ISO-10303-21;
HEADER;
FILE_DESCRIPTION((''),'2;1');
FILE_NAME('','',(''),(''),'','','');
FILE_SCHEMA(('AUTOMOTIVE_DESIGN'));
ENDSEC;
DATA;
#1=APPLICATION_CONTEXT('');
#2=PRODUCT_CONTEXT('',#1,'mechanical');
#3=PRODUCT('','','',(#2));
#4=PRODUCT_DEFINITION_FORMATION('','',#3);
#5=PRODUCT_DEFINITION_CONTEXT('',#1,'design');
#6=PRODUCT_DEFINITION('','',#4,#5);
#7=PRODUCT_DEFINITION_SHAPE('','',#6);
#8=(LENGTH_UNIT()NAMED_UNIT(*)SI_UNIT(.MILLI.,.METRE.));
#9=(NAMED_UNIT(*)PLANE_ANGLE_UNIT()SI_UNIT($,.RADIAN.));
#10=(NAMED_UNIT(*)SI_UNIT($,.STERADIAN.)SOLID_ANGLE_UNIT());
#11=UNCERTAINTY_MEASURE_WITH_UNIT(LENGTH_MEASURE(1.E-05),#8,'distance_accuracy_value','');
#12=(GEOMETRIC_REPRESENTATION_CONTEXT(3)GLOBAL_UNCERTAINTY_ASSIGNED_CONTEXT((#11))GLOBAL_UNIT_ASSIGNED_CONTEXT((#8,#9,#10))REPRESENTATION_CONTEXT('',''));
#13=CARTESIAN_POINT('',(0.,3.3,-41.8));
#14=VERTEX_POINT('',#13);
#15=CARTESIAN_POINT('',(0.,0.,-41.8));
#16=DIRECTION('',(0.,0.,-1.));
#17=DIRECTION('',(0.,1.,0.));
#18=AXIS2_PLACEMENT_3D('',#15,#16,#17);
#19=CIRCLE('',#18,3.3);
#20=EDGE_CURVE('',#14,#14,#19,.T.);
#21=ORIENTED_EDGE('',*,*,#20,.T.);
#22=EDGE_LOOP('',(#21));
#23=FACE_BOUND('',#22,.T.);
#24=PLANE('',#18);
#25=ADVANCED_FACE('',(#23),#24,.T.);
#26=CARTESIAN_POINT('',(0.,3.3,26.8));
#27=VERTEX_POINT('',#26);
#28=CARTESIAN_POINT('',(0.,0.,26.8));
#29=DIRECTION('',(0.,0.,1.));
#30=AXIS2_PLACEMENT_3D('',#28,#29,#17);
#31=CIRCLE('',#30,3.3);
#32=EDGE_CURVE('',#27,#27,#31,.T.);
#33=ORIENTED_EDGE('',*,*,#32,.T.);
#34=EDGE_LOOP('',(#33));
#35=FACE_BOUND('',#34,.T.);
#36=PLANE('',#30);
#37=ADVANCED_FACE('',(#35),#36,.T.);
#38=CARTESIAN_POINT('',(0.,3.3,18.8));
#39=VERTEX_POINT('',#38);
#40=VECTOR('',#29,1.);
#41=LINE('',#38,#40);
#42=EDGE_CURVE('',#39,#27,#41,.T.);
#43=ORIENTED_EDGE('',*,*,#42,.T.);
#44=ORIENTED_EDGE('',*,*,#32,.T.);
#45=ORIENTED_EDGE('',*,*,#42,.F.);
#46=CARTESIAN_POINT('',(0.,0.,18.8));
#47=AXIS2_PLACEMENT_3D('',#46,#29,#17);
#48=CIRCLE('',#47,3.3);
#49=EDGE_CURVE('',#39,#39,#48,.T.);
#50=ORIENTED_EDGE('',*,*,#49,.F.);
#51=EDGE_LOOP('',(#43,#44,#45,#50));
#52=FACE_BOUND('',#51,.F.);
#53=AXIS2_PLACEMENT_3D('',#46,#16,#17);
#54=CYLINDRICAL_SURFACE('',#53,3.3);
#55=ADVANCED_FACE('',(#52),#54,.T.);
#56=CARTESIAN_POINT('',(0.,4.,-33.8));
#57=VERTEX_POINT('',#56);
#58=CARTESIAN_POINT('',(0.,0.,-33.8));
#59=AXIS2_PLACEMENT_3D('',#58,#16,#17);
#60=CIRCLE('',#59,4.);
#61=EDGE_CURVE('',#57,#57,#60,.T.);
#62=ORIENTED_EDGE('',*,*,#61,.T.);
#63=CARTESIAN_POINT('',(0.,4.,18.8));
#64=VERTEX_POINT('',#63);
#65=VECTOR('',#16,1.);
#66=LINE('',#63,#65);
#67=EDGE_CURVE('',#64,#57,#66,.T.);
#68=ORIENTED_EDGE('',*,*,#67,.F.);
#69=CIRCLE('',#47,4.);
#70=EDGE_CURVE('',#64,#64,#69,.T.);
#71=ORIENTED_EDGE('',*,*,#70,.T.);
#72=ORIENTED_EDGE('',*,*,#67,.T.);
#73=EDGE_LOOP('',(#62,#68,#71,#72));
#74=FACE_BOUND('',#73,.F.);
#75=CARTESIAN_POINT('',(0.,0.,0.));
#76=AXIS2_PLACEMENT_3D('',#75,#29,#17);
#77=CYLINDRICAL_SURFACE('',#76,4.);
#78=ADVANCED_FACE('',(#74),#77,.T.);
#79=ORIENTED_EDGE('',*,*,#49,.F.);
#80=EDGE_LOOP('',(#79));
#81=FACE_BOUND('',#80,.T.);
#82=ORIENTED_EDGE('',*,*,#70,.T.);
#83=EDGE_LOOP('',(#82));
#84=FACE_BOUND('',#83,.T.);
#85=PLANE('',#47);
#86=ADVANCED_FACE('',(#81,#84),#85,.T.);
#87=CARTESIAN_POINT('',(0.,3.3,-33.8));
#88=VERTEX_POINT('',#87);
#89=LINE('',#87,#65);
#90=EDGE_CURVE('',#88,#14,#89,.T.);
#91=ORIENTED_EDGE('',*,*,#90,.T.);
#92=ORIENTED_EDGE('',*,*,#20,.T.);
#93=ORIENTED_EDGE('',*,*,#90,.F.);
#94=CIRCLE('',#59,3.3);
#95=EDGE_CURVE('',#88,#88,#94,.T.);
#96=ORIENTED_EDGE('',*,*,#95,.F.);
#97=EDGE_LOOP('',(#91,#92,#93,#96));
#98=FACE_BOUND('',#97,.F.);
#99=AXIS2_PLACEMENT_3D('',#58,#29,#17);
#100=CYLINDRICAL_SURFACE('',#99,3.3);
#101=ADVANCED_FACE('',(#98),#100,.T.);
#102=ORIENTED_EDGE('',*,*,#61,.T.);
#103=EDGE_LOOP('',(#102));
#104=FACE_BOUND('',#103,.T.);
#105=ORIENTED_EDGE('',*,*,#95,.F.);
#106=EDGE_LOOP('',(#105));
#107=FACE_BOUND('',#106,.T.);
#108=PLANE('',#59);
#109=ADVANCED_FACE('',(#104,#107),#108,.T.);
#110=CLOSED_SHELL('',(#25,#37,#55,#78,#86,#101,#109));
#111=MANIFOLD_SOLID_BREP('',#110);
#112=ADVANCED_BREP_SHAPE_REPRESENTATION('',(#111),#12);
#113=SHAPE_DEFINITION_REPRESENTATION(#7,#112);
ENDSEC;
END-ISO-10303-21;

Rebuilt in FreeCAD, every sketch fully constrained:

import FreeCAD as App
import Part
import Sketcher
from FreeCAD import Vector
Q = App.Units.Quantity

doc = App.newDocument("Part")
params = doc.addObject("Spreadsheet::Sheet", "Params")
for row, (alias, value) in enumerate([
    ("sketch1_diameter", "8 mm"),
    ("pad1_length", "18.8 mm"),
    ("sketch2_diameter", "6.6 mm"),
    ("pad2_length", "8 mm"),
    ("sketch3_diameter", "8 mm"),
    ("pad3_length", "33.8 mm"),
    ("sketch4_diameter", "6.6 mm"),
    ("pad4_length", "8 mm"),
], start=1):
    params.set(f"A{row}", alias)
    params.set(f"B{row}", "=" + value)
    params.setAlias(f"B{row}", alias)

body = doc.addObject("PartDesign::Body", "Body")

sketch1 = body.newObject("Sketcher::SketchObject", "Sketch")
sketch1.AttachmentSupport = (doc.getObject("XY_Plane"), [""])
sketch1.MapMode = "FlatFace"
sketch1.AttachmentOffset = App.Placement(Vector(0, 0, 18.8), App.Rotation())
sketch1.addGeometry(Part.Circle(Vector(0, 0, 0), Vector(0, 0, 1), 4), False)
sketch1.addConstraint(Sketcher.Constraint("Coincident", 0, 3, -1, 1))
sketch1.addConstraint(Sketcher.Constraint("Diameter", 0, Q("8 mm")))
sketch1.setExpression("Constraints[1]", "Params.sketch1_diameter")
pad1 = body.newObject("PartDesign::Pad", "Pad")
pad1.Profile = sketch1
pad1.setExpression("Length", "Params.pad1_length")
pad1.Reversed = True

sketch2 = body.newObject("Sketcher::SketchObject", "Sketch001")
sketch2.AttachmentSupport = (doc.getObject("XY_Plane"), [""])
sketch2.MapMode = "FlatFace"
sketch2.AttachmentOffset = App.Placement(Vector(0, 0, 18.8), App.Rotation())
sketch2.addGeometry(Part.Circle(Vector(0, 0, 0), Vector(0, 0, 1), 3.3), False)
sketch2.addConstraint(Sketcher.Constraint("Coincident", 0, 3, -1, 1))
sketch2.addConstraint(Sketcher.Constraint("Diameter", 0, Q("6.6 mm")))
sketch2.setExpression("Constraints[1]", "Params.sketch2_diameter")
pad2 = body.newObject("PartDesign::Pad", "Pad001")
pad2.Profile = sketch2
pad2.setExpression("Length", "Params.pad2_length")

sketch3 = body.newObject("Sketcher::SketchObject", "Sketch002")
sketch3.AttachmentSupport = (doc.getObject("XY_Plane"), [""])
sketch3.MapMode = "FlatFace"
sketch3.addGeometry(Part.Circle(Vector(0, 0, 0), Vector(0, 0, 1), 4), False)
sketch3.addConstraint(Sketcher.Constraint("Coincident", 0, 3, -1, 1))
sketch3.addConstraint(Sketcher.Constraint("Diameter", 0, Q("8 mm")))
sketch3.setExpression("Constraints[1]", "Params.sketch3_diameter")
pad3 = body.newObject("PartDesign::Pad", "Pad002")
pad3.Profile = sketch3
pad3.setExpression("Length", "Params.pad3_length")
pad3.Reversed = True

sketch4 = body.newObject("Sketcher::SketchObject", "Sketch003")
sketch4.AttachmentSupport = (doc.getObject("XY_Plane"), [""])
sketch4.MapMode = "FlatFace"
sketch4.AttachmentOffset = App.Placement(Vector(0, 0, -33.8), App.Rotation())
sketch4.addGeometry(Part.Circle(Vector(0, 0, 0), Vector(0, 0, 1), 3.3), False)
sketch4.addConstraint(Sketcher.Constraint("Coincident", 0, 3, -1, 1))
sketch4.addConstraint(Sketcher.Constraint("Diameter", 0, Q("6.6 mm")))
sketch4.setExpression("Constraints[1]", "Params.sketch4_diameter")
pad4 = body.newObject("PartDesign::Pad", "Pad003")
pad4.Profile = sketch4
pad4.setExpression("Length", "Params.pad4_length")
pad4.Reversed = True

doc.recompute()
